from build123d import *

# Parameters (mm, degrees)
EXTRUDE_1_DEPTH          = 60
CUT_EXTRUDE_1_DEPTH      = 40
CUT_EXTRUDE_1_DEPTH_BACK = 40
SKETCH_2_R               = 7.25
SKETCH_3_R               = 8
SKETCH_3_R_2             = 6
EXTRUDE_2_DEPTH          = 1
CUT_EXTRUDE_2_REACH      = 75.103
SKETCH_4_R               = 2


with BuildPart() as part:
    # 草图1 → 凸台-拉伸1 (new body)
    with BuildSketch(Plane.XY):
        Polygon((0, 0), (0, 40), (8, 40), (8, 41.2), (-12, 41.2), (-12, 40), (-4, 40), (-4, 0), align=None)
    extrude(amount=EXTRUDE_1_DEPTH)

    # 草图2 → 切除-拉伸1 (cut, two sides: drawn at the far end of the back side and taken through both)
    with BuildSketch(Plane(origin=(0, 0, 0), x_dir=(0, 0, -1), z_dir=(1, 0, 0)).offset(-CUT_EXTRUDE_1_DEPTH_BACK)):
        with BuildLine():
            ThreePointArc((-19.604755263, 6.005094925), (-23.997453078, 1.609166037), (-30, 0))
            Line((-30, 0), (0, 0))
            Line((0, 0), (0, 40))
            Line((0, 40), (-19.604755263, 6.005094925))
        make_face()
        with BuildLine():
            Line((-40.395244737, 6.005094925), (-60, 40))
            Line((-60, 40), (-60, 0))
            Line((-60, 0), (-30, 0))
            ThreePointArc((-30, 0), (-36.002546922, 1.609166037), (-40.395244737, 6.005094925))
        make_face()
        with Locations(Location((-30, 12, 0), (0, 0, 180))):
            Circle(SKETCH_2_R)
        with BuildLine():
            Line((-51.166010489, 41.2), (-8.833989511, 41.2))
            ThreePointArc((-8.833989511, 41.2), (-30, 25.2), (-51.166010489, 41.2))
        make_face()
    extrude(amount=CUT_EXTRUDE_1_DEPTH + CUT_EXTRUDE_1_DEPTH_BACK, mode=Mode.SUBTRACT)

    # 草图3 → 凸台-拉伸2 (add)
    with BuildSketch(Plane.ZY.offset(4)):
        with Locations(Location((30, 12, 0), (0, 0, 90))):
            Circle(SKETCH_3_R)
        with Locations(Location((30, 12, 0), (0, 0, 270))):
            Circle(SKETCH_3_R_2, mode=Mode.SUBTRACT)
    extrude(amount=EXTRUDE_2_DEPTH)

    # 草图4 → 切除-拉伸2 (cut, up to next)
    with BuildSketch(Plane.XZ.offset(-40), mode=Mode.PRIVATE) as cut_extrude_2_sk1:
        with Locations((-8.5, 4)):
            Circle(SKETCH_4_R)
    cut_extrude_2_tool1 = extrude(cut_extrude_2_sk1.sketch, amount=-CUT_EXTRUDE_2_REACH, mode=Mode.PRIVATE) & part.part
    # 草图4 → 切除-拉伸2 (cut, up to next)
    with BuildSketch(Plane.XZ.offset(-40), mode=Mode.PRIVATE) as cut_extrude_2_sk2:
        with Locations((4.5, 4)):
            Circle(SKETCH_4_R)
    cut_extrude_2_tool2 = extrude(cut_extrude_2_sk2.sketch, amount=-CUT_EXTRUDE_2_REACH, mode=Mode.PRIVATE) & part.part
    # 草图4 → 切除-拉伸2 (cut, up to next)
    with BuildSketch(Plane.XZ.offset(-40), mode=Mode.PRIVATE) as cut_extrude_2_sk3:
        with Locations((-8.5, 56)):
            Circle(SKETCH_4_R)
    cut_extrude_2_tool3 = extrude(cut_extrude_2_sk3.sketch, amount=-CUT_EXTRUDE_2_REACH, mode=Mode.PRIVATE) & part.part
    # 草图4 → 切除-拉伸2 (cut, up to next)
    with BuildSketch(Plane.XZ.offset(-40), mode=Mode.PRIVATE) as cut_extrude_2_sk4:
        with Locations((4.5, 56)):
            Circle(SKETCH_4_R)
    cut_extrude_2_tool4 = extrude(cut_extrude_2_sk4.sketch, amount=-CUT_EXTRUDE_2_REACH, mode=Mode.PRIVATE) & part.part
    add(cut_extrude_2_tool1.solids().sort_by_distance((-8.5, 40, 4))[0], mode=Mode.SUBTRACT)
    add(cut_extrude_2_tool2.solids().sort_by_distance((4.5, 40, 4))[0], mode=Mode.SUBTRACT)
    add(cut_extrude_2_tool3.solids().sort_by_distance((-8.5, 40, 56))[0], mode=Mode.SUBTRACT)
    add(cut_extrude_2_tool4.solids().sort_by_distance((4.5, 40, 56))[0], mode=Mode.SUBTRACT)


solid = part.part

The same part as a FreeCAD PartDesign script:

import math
import FreeCAD as App
import Part
import Sketcher
Q = App.Units.Quantity


def add_polygon(sketch, points):
    """Adds a closed chain of lines whose ends are joined by coincident constraints."""
    first, n = sketch.GeometryCount, len(points)
    for a, b in zip(points, points[1:] + points[:1]):
        sketch.addGeometry(Part.LineSegment(App.Vector(*a, 0), App.Vector(*b, 0)), False)
    for i in range(n):
        sketch.addConstraint(Sketcher.Constraint("Coincident", first + i, 2, first + (i + 1) % n, 1))

doc = App.newDocument("Part")
params = doc.addObject("Spreadsheet::Sheet", "Params")
for row, (alias, value) in enumerate([
    ("sketch1_width", "8 mm"),
    ("sketch1_width2", "20 mm"),
    ("sketch1_height", "40 mm"),
    ("sketch1_height2", "1.2 mm"),
    ("pad1_length", "60 mm"),
    ("sketch2_radius", "12 mm"),
    ("sketch2_radius2", "22 mm"),
    ("sketch2_diameter", "14.5 mm"),
    ("sketch2_width", "40 mm"),
    ("sketch2_height", "30 mm"),
    ("sketch3_diameter", "16 mm"),
    ("sketch3_diameter2", "12 mm"),
    ("pad2_length", "1 mm"),
    ("sketch4_diameter", "4 mm"),
    ("sketch5_diameter", "4 mm"),
    ("sketch6_diameter", "4 mm"),
    ("sketch7_diameter", "4 mm"),
], start=1):
    params.set(f"A{row}", alias)
    params.set(f"B{row}", "=" + value)
    params.setAlias(f"B{row}", alias)

body = doc.addObject("PartDesign::Body", "Body")

sketch1 = doc.addObject("Sketcher::SketchObject", "Sketch")
body.addObject(sketch1)
sketch1.AttachmentSupport = (doc.XY_Plane, [""])
sketch1.MapMode = "FlatFace"
add_polygon(sketch1, [(0, 0), (0, 40), (8, 40), (8, 41.2), (-12, 41.2), (-12, 40), (-4, 40), (-4, 0)])
sketch1.addConstraint(Sketcher.Constraint("Vertical", 0))
sketch1.addConstraint(Sketcher.Constraint("Horizontal", 1))
sketch1.addConstraint(Sketcher.Constraint("Vertical", 2))
sketch1.addConstraint(Sketcher.Constraint("Horizontal", 3))
sketch1.addConstraint(Sketcher.Constraint("Vertical", 4))
sketch1.addConstraint(Sketcher.Constraint("Horizontal", 5))
sketch1.addConstraint(Sketcher.Constraint("Vertical", 6))
sketch1.addConstraint(Sketcher.Constraint("Horizontal", 7))
sketch1.addConstraint(Sketcher.Constraint("Coincident", 7, 2, -1, 1))
sketch1.addConstraint(Sketcher.Constraint("Horizontal", 1, 2, 4, 2))
sketch1.addConstraint(Sketcher.Constraint("Equal", 1, 5))
sketch1.addConstraint(Sketcher.Constraint("DistanceX", 1, 1, 1, 2, Q("8 mm")))
sketch1.addConstraint(Sketcher.Constraint("DistanceX", 3, 2, 3, 1, Q("20 mm")))
sketch1.addConstraint(Sketcher.Constraint("DistanceY", 0, 1, 0, 2, Q("40 mm")))
sketch1.addConstraint(Sketcher.Constraint("DistanceY", 2, 1, 2, 2, Q("1.2 mm")))
sketch1.setExpression("Constraints[19]", "Params.sketch1_width")
sketch1.setExpression("Constraints[20]", "Params.sketch1_width2")
sketch1.setExpression("Constraints[21]", "Params.sketch1_height")
sketch1.setExpression("Constraints[22]", "Params.sketch1_height2")
pad1 = doc.addObject("PartDesign::Pad", "Pad")
body.addObject(pad1)
pad1.Profile = sketch1
pad1.setExpression("Length", "Params.pad1_length")

sketch2 = doc.addObject("Sketcher::SketchObject", "Sketch001")
body.addObject(sketch2)
sketch2.AttachmentSupport = (doc.YZ_Plane, [""])
sketch2.MapMode = "FlatFace"
sketch2.addGeometry(Part.ArcOfCircle(Part.Circle(App.Vector(12, 30, 0), App.Vector(0, 0, 1), 12), math.radians(180), math.radians(240.028086)), False)
sketch2.addGeometry(Part.LineSegment(App.Vector(0, 30, 0), App.Vector(0, 0, 0)), False)
sketch2.addGeometry(Part.LineSegment(App.Vector(0, 0, 0), App.Vector(40, 0, 0)), False)
sketch2.addGeometry(Part.LineSegment(App.Vector(40, 0, 0), App.Vector(6.005095, 19.604755, 0)), False)
sketch2.addGeometry(Part.LineSegment(App.Vector(6.005095, 40.395245, 0), App.Vector(40, 60, 0)), False)
sketch2.addGeometry(Part.LineSegment(App.Vector(40, 60, 0), App.Vector(0, 60, 0)), False)
sketch2.addGeometry(Part.LineSegment(App.Vector(0, 60, 0), App.Vector(0, 30, 0)), False)
sketch2.addGeometry(Part.ArcOfCircle(Part.Circle(App.Vector(12, 30, 0), App.Vector(0, 0, 1), 12), math.radians(119.971914), math.radians(180)), False)
sketch2.addGeometry(Part.Circle(App.Vector(12, 30, 0), App.Vector(0, 0, 1), 7.25), False)
sketch2.addGeometry(Part.LineSegment(App.Vector(41.2, 8.83399, 0), App.Vector(41.2, 51.16601, 0)), False)
sketch2.addGeometry(Part.ArcOfCircle(Part.Circle(App.Vector(47.2, 30, 0), App.Vector(0, 0, 1), 22), math.radians(105.82662), math.radians(254.17338)), False)
sketch2.addConstraint(Sketcher.Constraint("Tangent", 0, 1, 1, 1))
sketch2.addConstraint(Sketcher.Constraint("Coincident", 1, 2, 2, 1))
sketch2.addConstraint(Sketcher.Constraint("Coincident", 2, 2, 3, 1))
sketch2.addConstraint(Sketcher.Constraint("Tangent", 3, 2, 0, 2))
sketch2.addConstraint(Sketcher.Constraint("Coincident", 4, 2, 5, 1))
sketch2.addConstraint(Sketcher.Constraint("Coincident", 5, 2, 6, 1))
sketch2.addConstraint(Sketcher.Constraint("Tangent", 6, 2, 7, 2))
sketch2.addConstraint(Sketcher.Constraint("Tangent", 7, 1, 4, 1))
sketch2.addConstraint(Sketcher.Constraint("Coincident", 9, 1, 10, 2))
sketch2.addConstraint(Sketcher.Constraint("Coincident", 10, 1, 9, 2))
sketch2.addConstraint(Sketcher.Constraint("Vertical", 1))
sketch2.addConstraint(Sketcher.Constraint("Horizontal", 2))
sketch2.addConstraint(Sketcher.Constraint("Horizontal", 5))
sketch2.addConstraint(Sketcher.Constraint("Vertical", 6))
sketch2.addConstraint(Sketcher.Constraint("Vertical", 9))
sketch2.addConstraint(Sketcher.Constraint("Coincident", 1, 2, -1, 1))
sketch2.addConstraint(Sketcher.Constraint("Coincident", 7, 3, 0, 3))
sketch2.addConstraint(Sketcher.Constraint("Coincident", 8, 3, 0, 3))
sketch2.addConstraint(Sketcher.Constraint("Equal", 0, 7))
sketch2.addConstraint(Sketcher.Constraint("Horizontal", 8, 3, 10, 3))
sketch2.addConstraint(Sketcher.Constraint("Vertical", 2, 2, 4, 2))
sketch2.addConstraint(Sketcher.Constraint("Vertical", 3, 2, 7, 1))
sketch2.addConstraint(Sketcher.Constraint("Radius", 0, Q("12 mm")))
sketch2.addConstraint(Sketcher.Constraint("Radius", 10, Q("22 mm")))
sketch2.addConstraint(Sketcher.Constraint("Diameter", 8, Q("14.5 mm")))
sketch2.addConstraint(Sketcher.Constraint("DistanceX", 2, 1, 2, 2, Q("40 mm")))
sketch2.addConstraint(Sketcher.Constraint("DistanceY", 1, 2, 1, 1, Q("30 mm")))
sketch2.addConstraint(Sketcher.Constraint("DistanceX", 9, 1, 10, 3, Q("6 mm")))
sketch2.addConstraint(Sketcher.Constraint("DistanceX", -1, 1, 10, 3, Q("47.2 mm")))
sketch2.setExpression("Constraints[22]", "Params.sketch2_radius")
sketch2.setExpression("Constraints[23]", "Params.sketch2_radius2")
sketch2.setExpression("Constraints[24]", "Params.sketch2_diameter")
sketch2.setExpression("Constraints[25]", "Params.sketch2_width")
sketch2.setExpression("Constraints[26]", "Params.sketch2_height")
pocket1 = doc.addObject("PartDesign::Pocket", "Pocket")
body.addObject(pocket1)
pocket1.Profile = sketch2
pocket1.Type = "ThroughAll"
pocket1.Midplane = True

sketch3 = doc.addObject("Sketcher::SketchObject", "Sketch002")
body.addObject(sketch3)
sketch3.AttachmentSupport = (doc.YZ_Plane, [""])
sketch3.MapMode = "FlatFace"
sketch3.AttachmentOffset = App.Placement(App.Vector(0, 0, -4), App.Rotation())
sketch3.addGeometry(Part.Circle(App.Vector(12, 30, 0), App.Vector(0, 0, 1), 8), False)
sketch3.addGeometry(Part.Circle(App.Vector(12, 30, 0), App.Vector(0, 0, 1), 6), False)
sketch3.addConstraint(Sketcher.Constraint("Coincident", 1, 3, 0, 3))
sketch3.addConstraint(Sketcher.Constraint("Diameter", 0, Q("16 mm")))
sketch3.addConstraint(Sketcher.Constraint("Diameter", 1, Q("12 mm")))
sketch3.addConstraint(Sketcher.Constraint("DistanceX", -1, 1, 0, 3, Q("12 mm")))
sketch3.addConstraint(Sketcher.Constraint("DistanceY", -1, 1, 0, 3, Q("30 mm")))
sketch3.setExpression("Constraints[1]", "Params.sketch3_diameter")
sketch3.setExpression("Constraints[2]", "Params.sketch3_diameter2")
pad2 = doc.addObject("PartDesign::Pad", "Pad001")
body.addObject(pad2)
pad2.Profile = sketch3
pad2.setExpression("Length", "Params.pad2_length")
pad2.Reversed = True

sketch4 = doc.addObject("Sketcher::SketchObject", "Sketch003")
body.addObject(sketch4)
sketch4.AttachmentSupport = (doc.XZ_Plane, [""])
sketch4.MapMode = "FlatFace"
sketch4.AttachmentOffset = App.Placement(App.Vector(0, 0, -40), App.Rotation())
sketch4.addGeometry(Part.Circle(App.Vector(-8.5, 4, 0), App.Vector(0, 0, 1), 2), False)
sketch4.addConstraint(Sketcher.Constraint("Diameter", 0, Q("4 mm")))
sketch4.addConstraint(Sketcher.Constraint("DistanceY", -1, 1, 0, 3, Q("4 mm")))
sketch4.addConstraint(Sketcher.Constraint("DistanceX", 0, 3, -1, 1, Q("8.5 mm")))
sketch4.setExpression("Constraints[0]", "Params.sketch4_diameter")
pocket2 = doc.addObject("PartDesign::Pocket", "Pocket001")
body.addObject(pocket2)
pocket2.Profile = sketch4
pocket2.Type = "UpToFirst"

sketch5 = doc.addObject("Sketcher::SketchObject", "Sketch004")
body.addObject(sketch5)
sketch5.AttachmentSupport = (doc.XZ_Plane, [""])
sketch5.MapMode = "FlatFace"
sketch5.AttachmentOffset = App.Placement(App.Vector(0, 0, -40), App.Rotation())
sketch5.addGeometry(Part.Circle(App.Vector(4.5, 4, 0), App.Vector(0, 0, 1), 2), False)
sketch5.addConstraint(Sketcher.Constraint("Diameter", 0, Q("4 mm")))
sketch5.addConstraint(Sketcher.Constraint("DistanceY", -1, 1, 0, 3, Q("4 mm")))
sketch5.addConstraint(Sketcher.Constraint("DistanceX", -1, 1, 0, 3, Q("4.5 mm")))
sketch5.setExpression("Constraints[0]", "Params.sketch5_diameter")
pocket3 = doc.addObject("PartDesign::Pocket", "Pocket002")
body.addObject(pocket3)
pocket3.Profile = sketch5
pocket3.Type = "UpToFirst"

sketch6 = doc.addObject("Sketcher::SketchObject", "Sketch005")
body.addObject(sketch6)
sketch6.AttachmentSupport = (doc.XZ_Plane, [""])
sketch6.MapMode = "FlatFace"
sketch6.AttachmentOffset = App.Placement(App.Vector(0, 0, -40), App.Rotation())
sketch6.addGeometry(Part.Circle(App.Vector(-8.5, 56, 0), App.Vector(0, 0, 1), 2), False)
sketch6.addConstraint(Sketcher.Constraint("Diameter", 0, Q("4 mm")))
sketch6.addConstraint(Sketcher.Constraint("DistanceY", -1, 1, 0, 3, Q("56 mm")))
sketch6.addConstraint(Sketcher.Constraint("DistanceX", 0, 3, -1, 1, Q("8.5 mm")))
sketch6.setExpression("Constraints[0]", "Params.sketch6_diameter")
pocket4 = doc.addObject("PartDesign::Pocket", "Pocket003")
body.addObject(pocket4)
pocket4.Profile = sketch6
pocket4.Type = "UpToFirst"

sketch7 = doc.addObject("Sketcher::SketchObject", "Sketch006")
body.addObject(sketch7)
sketch7.AttachmentSupport = (doc.XZ_Plane, [""])
sketch7.MapMode = "FlatFace"
sketch7.AttachmentOffset = App.Placement(App.Vector(0, 0, -40), App.Rotation())
sketch7.addGeometry(Part.Circle(App.Vector(4.5, 56, 0), App.Vector(0, 0, 1), 2), False)
sketch7.addConstraint(Sketcher.Constraint("Diameter", 0, Q("4 mm")))
sketch7.addConstraint(Sketcher.Constraint("DistanceY", -1, 1, 0, 3, Q("56 mm")))
sketch7.addConstraint(Sketcher.Constraint("DistanceX", -1, 1, 0, 3, Q("4.5 mm")))
sketch7.setExpression("Constraints[0]", "Params.sketch7_diameter")
pocket5 = doc.addObject("PartDesign::Pocket", "Pocket004")
body.addObject(pocket5)
pocket5.Profile = sketch7
pocket5.Type = "UpToFirst"

doc.recompute()
